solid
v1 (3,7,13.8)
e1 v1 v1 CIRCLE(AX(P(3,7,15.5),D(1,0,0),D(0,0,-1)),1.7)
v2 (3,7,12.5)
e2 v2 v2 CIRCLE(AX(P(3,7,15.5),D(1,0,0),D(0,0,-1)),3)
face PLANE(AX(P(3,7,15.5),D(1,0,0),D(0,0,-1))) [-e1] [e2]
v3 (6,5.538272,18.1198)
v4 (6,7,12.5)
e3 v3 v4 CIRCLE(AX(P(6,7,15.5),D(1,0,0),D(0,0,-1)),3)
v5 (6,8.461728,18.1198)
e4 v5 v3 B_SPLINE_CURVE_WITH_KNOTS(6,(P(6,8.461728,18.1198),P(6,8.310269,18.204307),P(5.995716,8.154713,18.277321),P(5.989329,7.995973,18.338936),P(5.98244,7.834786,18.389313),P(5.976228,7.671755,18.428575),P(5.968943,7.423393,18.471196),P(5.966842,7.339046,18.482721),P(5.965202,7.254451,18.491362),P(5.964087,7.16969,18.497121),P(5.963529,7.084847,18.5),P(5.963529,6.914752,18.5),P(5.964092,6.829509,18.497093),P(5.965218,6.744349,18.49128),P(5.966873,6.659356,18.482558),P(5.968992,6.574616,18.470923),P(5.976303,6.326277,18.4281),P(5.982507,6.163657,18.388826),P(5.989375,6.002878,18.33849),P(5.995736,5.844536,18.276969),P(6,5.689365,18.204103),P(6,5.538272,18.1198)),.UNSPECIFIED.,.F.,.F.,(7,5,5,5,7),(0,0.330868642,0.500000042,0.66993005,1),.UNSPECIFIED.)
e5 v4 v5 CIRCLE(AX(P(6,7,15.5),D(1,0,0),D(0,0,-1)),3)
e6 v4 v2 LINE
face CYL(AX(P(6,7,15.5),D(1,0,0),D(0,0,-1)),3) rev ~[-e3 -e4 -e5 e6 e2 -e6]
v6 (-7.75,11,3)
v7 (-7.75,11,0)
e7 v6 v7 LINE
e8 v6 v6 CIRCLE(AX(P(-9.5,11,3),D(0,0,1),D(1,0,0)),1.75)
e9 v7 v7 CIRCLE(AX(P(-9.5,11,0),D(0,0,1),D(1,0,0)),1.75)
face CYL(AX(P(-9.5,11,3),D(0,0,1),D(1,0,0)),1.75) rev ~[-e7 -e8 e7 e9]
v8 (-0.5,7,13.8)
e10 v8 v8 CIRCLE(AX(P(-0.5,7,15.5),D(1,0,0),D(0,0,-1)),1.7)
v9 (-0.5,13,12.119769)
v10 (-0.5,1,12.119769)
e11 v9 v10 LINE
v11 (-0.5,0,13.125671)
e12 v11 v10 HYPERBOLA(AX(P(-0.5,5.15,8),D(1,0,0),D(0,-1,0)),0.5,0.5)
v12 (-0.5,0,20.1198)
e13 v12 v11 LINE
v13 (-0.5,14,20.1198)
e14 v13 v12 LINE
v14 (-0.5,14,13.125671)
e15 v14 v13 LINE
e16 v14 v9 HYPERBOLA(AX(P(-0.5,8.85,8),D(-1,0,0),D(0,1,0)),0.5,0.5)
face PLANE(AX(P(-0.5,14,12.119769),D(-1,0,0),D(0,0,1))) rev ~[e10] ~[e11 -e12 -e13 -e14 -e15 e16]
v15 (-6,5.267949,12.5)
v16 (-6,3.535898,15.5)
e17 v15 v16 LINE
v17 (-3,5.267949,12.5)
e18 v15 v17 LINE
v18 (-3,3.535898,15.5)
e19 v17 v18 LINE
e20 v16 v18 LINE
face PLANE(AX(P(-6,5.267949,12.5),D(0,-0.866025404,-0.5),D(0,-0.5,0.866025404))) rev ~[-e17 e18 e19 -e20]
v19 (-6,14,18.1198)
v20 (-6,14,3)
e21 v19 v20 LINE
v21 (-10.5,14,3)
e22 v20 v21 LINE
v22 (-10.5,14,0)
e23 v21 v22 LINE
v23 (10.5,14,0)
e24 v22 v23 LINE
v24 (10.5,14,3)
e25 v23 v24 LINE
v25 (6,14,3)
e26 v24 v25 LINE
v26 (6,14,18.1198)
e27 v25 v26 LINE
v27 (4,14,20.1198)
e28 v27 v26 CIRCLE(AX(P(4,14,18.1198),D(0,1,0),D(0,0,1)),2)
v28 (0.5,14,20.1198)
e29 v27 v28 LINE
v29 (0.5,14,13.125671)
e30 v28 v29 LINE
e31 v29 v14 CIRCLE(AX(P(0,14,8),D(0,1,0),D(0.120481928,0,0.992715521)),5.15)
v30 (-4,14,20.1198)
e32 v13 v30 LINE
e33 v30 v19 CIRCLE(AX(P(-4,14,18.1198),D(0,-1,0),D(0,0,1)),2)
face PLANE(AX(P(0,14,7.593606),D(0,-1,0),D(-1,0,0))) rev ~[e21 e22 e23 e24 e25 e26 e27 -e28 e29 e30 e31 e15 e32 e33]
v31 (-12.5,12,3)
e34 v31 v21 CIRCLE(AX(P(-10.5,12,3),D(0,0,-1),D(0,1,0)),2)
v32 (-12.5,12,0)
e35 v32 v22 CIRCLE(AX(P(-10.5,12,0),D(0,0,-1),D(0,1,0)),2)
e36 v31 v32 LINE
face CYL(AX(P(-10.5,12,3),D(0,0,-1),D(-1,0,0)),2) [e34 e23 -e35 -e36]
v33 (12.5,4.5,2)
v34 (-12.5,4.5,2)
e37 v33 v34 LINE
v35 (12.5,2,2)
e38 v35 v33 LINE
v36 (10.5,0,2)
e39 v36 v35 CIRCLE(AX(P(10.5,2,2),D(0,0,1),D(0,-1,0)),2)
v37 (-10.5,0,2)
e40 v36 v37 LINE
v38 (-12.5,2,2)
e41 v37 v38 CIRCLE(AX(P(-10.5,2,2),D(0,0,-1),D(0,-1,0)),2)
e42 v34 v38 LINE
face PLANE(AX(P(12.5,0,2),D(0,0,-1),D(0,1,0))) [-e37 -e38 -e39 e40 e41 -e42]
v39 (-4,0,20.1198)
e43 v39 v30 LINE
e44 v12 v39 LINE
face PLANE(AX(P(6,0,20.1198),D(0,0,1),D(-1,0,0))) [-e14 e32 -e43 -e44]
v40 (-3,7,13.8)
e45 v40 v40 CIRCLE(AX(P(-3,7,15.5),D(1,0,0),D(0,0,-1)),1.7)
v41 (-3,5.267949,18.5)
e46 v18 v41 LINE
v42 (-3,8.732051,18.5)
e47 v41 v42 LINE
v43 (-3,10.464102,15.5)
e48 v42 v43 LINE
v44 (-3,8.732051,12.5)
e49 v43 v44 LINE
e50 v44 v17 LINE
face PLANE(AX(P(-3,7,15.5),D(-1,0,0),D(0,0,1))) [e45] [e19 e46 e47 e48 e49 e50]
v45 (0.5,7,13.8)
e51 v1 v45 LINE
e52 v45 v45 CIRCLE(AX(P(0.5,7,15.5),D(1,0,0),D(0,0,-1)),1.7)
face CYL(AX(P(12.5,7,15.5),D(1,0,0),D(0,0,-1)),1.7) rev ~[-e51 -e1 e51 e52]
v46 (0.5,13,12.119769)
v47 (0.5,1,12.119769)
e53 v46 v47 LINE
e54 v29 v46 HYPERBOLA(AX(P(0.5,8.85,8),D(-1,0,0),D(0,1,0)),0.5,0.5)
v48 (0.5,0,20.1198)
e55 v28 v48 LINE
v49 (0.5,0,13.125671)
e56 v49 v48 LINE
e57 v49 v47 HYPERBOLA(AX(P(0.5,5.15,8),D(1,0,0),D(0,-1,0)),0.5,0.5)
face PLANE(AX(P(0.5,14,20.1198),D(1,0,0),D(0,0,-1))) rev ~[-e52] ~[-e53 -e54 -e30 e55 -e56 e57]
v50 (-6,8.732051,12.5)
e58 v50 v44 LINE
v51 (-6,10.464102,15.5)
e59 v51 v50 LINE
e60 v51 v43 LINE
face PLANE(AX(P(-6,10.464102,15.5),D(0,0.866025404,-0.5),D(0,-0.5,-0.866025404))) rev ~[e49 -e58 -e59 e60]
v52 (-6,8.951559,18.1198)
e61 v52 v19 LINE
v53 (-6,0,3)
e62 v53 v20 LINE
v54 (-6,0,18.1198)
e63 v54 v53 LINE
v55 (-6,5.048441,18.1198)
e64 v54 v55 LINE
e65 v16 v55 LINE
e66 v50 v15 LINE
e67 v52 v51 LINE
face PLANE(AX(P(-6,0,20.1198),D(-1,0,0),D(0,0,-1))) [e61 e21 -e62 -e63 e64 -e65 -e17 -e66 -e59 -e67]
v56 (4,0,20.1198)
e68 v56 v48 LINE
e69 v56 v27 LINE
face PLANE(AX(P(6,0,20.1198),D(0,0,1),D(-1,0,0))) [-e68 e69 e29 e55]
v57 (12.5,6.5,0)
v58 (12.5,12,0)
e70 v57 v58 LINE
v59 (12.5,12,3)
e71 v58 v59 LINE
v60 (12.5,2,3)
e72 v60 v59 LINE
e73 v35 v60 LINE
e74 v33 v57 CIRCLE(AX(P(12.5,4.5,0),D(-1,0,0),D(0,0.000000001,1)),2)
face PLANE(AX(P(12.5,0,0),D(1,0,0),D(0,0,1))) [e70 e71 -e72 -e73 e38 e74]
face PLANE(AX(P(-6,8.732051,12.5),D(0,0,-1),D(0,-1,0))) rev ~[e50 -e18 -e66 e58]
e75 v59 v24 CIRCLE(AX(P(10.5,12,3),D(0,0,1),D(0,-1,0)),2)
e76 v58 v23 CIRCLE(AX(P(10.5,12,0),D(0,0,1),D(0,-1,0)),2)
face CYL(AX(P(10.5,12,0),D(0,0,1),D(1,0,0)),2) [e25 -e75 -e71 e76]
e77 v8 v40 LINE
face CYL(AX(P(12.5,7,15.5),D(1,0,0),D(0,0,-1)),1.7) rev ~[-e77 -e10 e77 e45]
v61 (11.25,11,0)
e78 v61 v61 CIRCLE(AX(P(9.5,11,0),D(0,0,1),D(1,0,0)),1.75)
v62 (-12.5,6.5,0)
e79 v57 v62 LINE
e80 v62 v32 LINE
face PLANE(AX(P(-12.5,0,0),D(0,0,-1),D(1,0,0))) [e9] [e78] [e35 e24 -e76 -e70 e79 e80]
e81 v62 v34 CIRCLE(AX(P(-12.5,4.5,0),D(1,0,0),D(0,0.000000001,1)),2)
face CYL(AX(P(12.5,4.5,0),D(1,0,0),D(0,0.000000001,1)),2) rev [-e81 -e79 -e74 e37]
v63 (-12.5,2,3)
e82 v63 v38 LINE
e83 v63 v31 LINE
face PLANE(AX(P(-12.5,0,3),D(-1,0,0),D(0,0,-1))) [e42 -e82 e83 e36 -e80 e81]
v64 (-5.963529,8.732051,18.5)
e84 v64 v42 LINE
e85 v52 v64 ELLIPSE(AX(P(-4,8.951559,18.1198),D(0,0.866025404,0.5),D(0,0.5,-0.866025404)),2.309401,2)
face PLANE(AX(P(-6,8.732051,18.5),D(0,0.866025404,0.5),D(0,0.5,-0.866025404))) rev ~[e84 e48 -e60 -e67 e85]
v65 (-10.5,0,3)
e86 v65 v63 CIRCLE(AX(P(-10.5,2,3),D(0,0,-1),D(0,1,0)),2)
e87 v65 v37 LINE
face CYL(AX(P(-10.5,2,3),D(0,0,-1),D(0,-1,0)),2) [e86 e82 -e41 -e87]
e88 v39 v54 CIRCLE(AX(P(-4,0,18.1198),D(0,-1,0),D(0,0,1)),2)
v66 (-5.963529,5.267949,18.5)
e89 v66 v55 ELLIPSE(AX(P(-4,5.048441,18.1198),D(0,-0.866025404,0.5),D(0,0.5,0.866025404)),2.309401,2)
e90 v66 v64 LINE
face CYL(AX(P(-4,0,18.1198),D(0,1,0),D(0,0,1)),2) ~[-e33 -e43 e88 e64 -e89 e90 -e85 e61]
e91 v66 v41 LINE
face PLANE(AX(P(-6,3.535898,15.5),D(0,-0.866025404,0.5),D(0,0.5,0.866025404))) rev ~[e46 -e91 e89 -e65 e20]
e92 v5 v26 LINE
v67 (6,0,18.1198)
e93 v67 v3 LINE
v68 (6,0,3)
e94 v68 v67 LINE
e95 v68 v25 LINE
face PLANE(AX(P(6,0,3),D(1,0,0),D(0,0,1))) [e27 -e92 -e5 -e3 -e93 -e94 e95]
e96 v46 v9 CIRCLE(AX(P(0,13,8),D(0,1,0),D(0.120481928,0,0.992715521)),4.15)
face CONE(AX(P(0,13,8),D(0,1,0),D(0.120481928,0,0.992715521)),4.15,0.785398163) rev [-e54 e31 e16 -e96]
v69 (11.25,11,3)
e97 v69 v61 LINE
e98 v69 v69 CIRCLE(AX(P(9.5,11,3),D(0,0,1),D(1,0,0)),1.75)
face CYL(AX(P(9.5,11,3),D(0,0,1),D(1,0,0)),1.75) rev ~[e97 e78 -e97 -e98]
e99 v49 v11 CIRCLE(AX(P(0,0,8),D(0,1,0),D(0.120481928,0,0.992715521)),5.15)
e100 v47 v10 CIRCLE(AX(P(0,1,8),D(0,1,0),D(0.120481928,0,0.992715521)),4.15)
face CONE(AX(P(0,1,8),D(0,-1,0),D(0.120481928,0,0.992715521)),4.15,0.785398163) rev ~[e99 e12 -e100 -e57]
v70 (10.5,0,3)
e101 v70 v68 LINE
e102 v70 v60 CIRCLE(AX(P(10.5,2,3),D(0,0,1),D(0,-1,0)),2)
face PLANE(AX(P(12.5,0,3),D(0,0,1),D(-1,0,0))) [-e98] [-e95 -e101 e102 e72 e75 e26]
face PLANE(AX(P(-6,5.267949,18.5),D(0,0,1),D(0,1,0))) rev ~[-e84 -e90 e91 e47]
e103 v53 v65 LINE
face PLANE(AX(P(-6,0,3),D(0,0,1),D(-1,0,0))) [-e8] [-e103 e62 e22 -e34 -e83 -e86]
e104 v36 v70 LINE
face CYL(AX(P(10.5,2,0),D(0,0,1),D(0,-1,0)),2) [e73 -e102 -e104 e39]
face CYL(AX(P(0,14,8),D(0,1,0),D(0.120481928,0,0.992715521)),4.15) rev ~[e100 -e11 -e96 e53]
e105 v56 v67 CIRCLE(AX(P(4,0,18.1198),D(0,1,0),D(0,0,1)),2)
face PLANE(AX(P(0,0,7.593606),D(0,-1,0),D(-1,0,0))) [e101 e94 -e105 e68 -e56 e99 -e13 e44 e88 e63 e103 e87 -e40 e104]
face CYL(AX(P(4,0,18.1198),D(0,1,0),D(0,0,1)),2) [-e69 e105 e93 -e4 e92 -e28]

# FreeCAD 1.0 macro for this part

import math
import FreeCAD as App
import Part
import Sketcher

V = App.Vector
Q = App.Units.Quantity


def edges_at(feature, points):
    """Names of the edges that pass closest to the given points."""
    edges = feature.Shape.Edges
    near = lambda p: min(range(len(edges)), key=lambda i: edges[i].distToShape(Part.Vertex(*p))[0])
    return sorted({f"Edge{near(p) + 1}" for p in points})

doc = App.newDocument("Part")
body = doc.addObject("PartDesign::Body", "Body")

sketch1 = body.newObject("Sketcher::SketchObject", "Sketch")
sketch1.AttachmentSupport = (doc.getObject("XZ_Plane"), [""])
sketch1.MapMode = "FlatFace"
sketch1.addGeometry(Part.LineSegment(V(12.5, 0, 0), V(-12.5, 0, 0)), False)
sketch1.addGeometry(Part.LineSegment(V(-12.5, 0, 0), V(-12.5, 3, 0)), False)
sketch1.addGeometry(Part.LineSegment(V(-12.5, 3, 0), V(-6, 3, 0)), False)
sketch1.addGeometry(Part.LineSegment(V(-6, 3, 0), V(-6, 20.1, 0)), False)
sketch1.addGeometry(Part.LineSegment(V(-6, 20.1, 0), V(6, 20.1, 0)), False)
sketch1.addGeometry(Part.LineSegment(V(6, 20.1, 0), V(6, 3, 0)), False)
sketch1.addGeometry(Part.LineSegment(V(6, 3, 0), V(12.5, 3, 0)), False)
sketch1.addGeometry(Part.LineSegment(V(12.5, 3, 0), V(12.5, 0, 0)), False)
sketch1.addConstraint(Sketcher.Constraint("Coincident", 0, 2, 1, 1))
sketch1.addConstraint(Sketcher.Constraint("Coincident", 1, 2, 2, 1))
sketch1.addConstraint(Sketcher.Constraint("Coincident", 2, 2, 3, 1))
sketch1.addConstraint(Sketcher.Constraint("Coincident", 3, 2, 4, 1))
sketch1.addConstraint(Sketcher.Constraint("Coincident", 4, 2, 5, 1))
sketch1.addConstraint(Sketcher.Constraint("Coincident", 5, 2, 6, 1))
sketch1.addConstraint(Sketcher.Constraint("Coincident", 6, 2, 7, 1))
sketch1.addConstraint(Sketcher.Constraint("Coincident", 7, 2, 0, 1))
sketch1.addConstraint(Sketcher.Constraint("Horizontal", 0))
sketch1.addConstraint(Sketcher.Constraint("Vertical", 1))
sketch1.addConstraint(Sketcher.Constraint("Horizontal", 2))
sketch1.addConstraint(Sketcher.Constraint("Vertical", 3))
sketch1.addConstraint(Sketcher.Constraint("Horizontal", 4))
sketch1.addConstraint(Sketcher.Constraint("Vertical", 5))
sketch1.addConstraint(Sketcher.Constraint("Horizontal", 6))
sketch1.addConstraint(Sketcher.Constraint("Vertical", 7))
sketch1.addConstraint(Sketcher.Constraint("Symmetric", 0, 2, 7, 2, -1, 1))
sketch1.addConstraint(Sketcher.Constraint("Symmetric", 2, 2, 5, 2, -2))
sketch1.addConstraint(Sketcher.Constraint("DistanceX", 0, 2, 0, 1, Q("25 mm")))
sketch1.addConstraint(Sketcher.Constraint("DistanceX", 4, 1, 4, 2, Q("12 mm")))
sketch1.addConstraint(Sketcher.Constraint("DistanceY", 1, 1, 1, 2, Q("3 mm")))
sketch1.addConstraint(Sketcher.Constraint("DistanceY", 3, 1, 3, 2, Q("17.1198 mm")))
pad1 = body.newObject("PartDesign::Pad", "Pad")
pad1.Profile = sketch1
pad1.Length = 14
pad1.Reversed = True

sketch2 = body.newObject("Sketcher::SketchObject", "Sketch001")
sketch2.AttachmentSupport = (doc.getObject("XZ_Plane"), [""])
sketch2.MapMode = "FlatFace"
sketch2.AttachmentOffset = App.Placement(V(0, 0, -14), App.Rotation())
sketch2.addGeometry(Part.LineSegment(V(-0.5, 12.1, 0), V(-0.5, 20.1, 0)), False)
sketch2.addGeometry(Part.LineSegment(V(-0.5, 20.1, 0), V(0.5, 20.1, 0)), False)
sketch2.addGeometry(Part.LineSegment(V(0.5, 20.1, 0), V(0.5, 12.1, 0)), False)
sketch2.addGeometry(Part.ArcOfCircle(Part.Circle(V(0, 8, 0), V(0, 0, 1), 4.2), math.radians(97), math.radians(443)), False)
sketch2.addConstraint(Sketcher.Constraint("Coincident", 0, 2, 1, 1))
sketch2.addConstraint(Sketcher.Constraint("Coincident", 1, 2, 2, 1))
sketch2.addConstraint(Sketcher.Constraint("Coincident", 2, 2, 3, 2))
sketch2.addConstraint(Sketcher.Constraint("Coincident", 3, 1, 0, 1))
sketch2.addConstraint(Sketcher.Constraint("Vertical", 0))
sketch2.addConstraint(Sketcher.Constraint("Horizontal", 1))
sketch2.addConstraint(Sketcher.Constraint("Vertical", 2))
sketch2.addConstraint(Sketcher.Constraint("Symmetric", 2, 2, 3, 1, -2))
sketch2.addConstraint(Sketcher.Constraint("DistanceX", 1, 1, 1, 2, Q("1 mm")))
sketch2.addConstraint(Sketcher.Constraint("Radius", 3, Q("4.15 mm")))
sketch2.addConstraint(Sketcher.Constraint("DistanceY", -1, 1, 3, 3, Q("8 mm")))
sketch2.addConstraint(Sketcher.Constraint("DistanceY", 0, 1, 0, 2, Q("8.000031 mm")))
pocket1 = body.newObject("PartDesign::Pocket", "Pocket")
pocket1.Profile = sketch2
pocket1.Type = "ThroughAll"
pocket1.Reversed = True
doc.recompute()

chamfer = body.newObject("PartDesign::Chamfer", "Chamfer")
chamfer.Base = (pocket1, edges_at(pocket1, [(0, 0, 3.85), (0, 14, 3.85)]))
chamfer.Size = 1
doc.recompute()

fillet = body.newObject("PartDesign::Fillet", "Fillet")
fillet.Base = (chamfer, edges_at(chamfer, [
    (-12.5, 0, 1.5),
    (6, 7, 20.12),
    (-6, 7, 20.12),
    (12.5, 14, 1.5),
    (-12.5, 14, 1.5),
    (12.5, 0, 1.5),
]))
fillet.Radius = 2

sketch3 = body.newObject("Sketcher::SketchObject", "Sketch002")
sketch3.AttachmentSupport = (doc.getObject("XY_Plane"), [""])
sketch3.MapMode = "FlatFace"
sketch3.AttachmentOffset = App.Placement(V(0, 0, 3), App.Rotation())
sketch3.addGeometry(Part.Circle(V(-9.5, 11, 0), V(0, 0, 1), 1.8), False)
sketch3.addGeometry(Part.Circle(V(9.5, 11, 0), V(0, 0, 1), 1.8), False)
sketch3.addConstraint(Sketcher.Constraint("Equal", 0, 1))
sketch3.addConstraint(Sketcher.Constraint("Symmetric", 0, 3, 1, 3, -2))
sketch3.addConstraint(Sketcher.Constraint("Diameter", 0, Q("3.5 mm")))
sketch3.addConstraint(Sketcher.Constraint("DistanceY", -1, 1, 0, 3, Q("11 mm")))
sketch3.addConstraint(Sketcher.Constraint("DistanceX", 0, 3, 1, 3, Q("19 mm")))
pocket2 = body.newObject("PartDesign::Pocket", "Pocket001")
pocket2.Profile = sketch3
pocket2.Type = "ThroughAll"

sketch4 = body.newObject("Sketcher::SketchObject", "Sketch003")
sketch4.AttachmentSupport = (doc.getObject("YZ_Plane"), [""])
sketch4.MapMode = "FlatFace"
sketch4.AttachmentOffset = App.Placement(V(0, 0, 12.5), App.Rotation())
sketch4.addGeometry(Part.Circle(V(7, 15.5, 0), V(0, 0, 1), 1.7), False)
sketch4.addGeometry(Part.LineSegment(V(4.5, 2, 0), V(0, 2, 0)), False)
sketch4.addGeometry(Part.LineSegment(V(0, 2, 0), V(0, 0, 0)), False)
sketch4.addGeometry(Part.LineSegment(V(0, 0, 0), V(6.5, 0, 0)), False)
sketch4.addGeometry(Part.ArcOfCircle(Part.Circle(V(4.5, 0, 0), V(0, 0, 1), 2), math.radians(0), math.radians(90)), False)
sketch4.addConstraint(Sketcher.Constraint("Coincident", 1, 2, 2, 1))
sketch4.addConstraint(Sketcher.Constraint("Coincident", 2, 2, 3, 1))
sketch4.addConstraint(Sketcher.Constraint("Coincident", 3, 2, 4, 1))
sketch4.addConstraint(Sketcher.Constraint("Tangent", 4, 2, 1, 1))
sketch4.addConstraint(Sketcher.Constraint("Horizontal", 1))
sketch4.addConstraint(Sketcher.Constraint("Vertical", 2))
sketch4.addConstraint(Sketcher.Constraint("Horizontal", 3))
sketch4.addConstraint(Sketcher.Constraint("Coincident", 2, 2, -1, 1))
sketch4.addConstraint(Sketcher.Constraint("PointOnObject", 4, 3, -1))
sketch4.addConstraint(Sketcher.Constraint("Radius", 4, Q("2 mm")))
sketch4.addConstraint(Sketcher.Constraint("Diameter", 0, Q("3.4 mm")))
sketch4.addConstraint(Sketcher.Constraint("DistanceX", 1, 2, 1, 1, Q("4.5 mm")))
sketch4.addConstraint(Sketcher.Constraint("DistanceX", -1, 1, 0, 3, Q("7 mm")))
sketch4.addConstraint(Sketcher.Constraint("DistanceY", -1, 1, 0, 3, Q("15.5 mm")))
pocket3 = body.newObject("PartDesign::Pocket", "Pocket002")
pocket3.Profile = sketch4
pocket3.Type = "ThroughAll"

sketch5 = body.newObject("Sketcher::SketchObject", "Sketch004")
sketch5.AttachmentSupport = (doc.getObject("YZ_Plane"), [""])
sketch5.MapMode = "FlatFace"
sketch5.AttachmentOffset = App.Placement(V(0, 0, 6), App.Rotation())
sketch5.addGeometry(Part.Circle(V(7, 15.5, 0), V(0, 0, 1), 3), False)
sketch5.addConstraint(Sketcher.Constraint("Diameter", 0, Q("6 mm")))
sketch5.addConstraint(Sketcher.Constraint("DistanceX", -1, 1, 0, 3, Q("7 mm")))
sketch5.addConstraint(Sketcher.Constraint("DistanceY", -1, 1, 0, 3, Q("15.5 mm")))
pocket4 = body.newObject("PartDesign::Pocket", "Pocket003")
pocket4.Profile = sketch5
pocket4.Length = 3

sketch6 = body.newObject("Sketcher::SketchObject", "Sketch005")
sketch6.AttachmentSupport = (doc.getObject("YZ_Plane"), [""])
sketch6.MapMode = "FlatFace"
sketch6.AttachmentOffset = App.Placement(V(0, 0, -6), App.Rotation())
sketch6.addGeometry(Part.LineSegment(V(3.5, 15.5, 0), V(5.3, 18.5, 0)), False)
sketch6.addGeometry(Part.LineSegment(V(5.3, 18.5, 0), V(8.7, 18.5, 0)), False)
sketch6.addGeometry(Part.LineSegment(V(8.7, 18.5, 0), V(10.5, 15.5, 0)), False)
sketch6.addGeometry(Part.LineSegment(V(10.5, 15.5, 0), V(8.7, 12.5, 0)), False)
sketch6.addGeometry(Part.LineSegment(V(8.7, 12.5, 0), V(5.3, 12.5, 0)), False)
sketch6.addGeometry(Part.LineSegment(V(5.3, 12.5, 0), V(3.5, 15.5, 0)), False)
sketch6.addConstraint(Sketcher.Constraint("Coincident", 0, 2, 1, 1))
sketch6.addConstraint(Sketcher.Constraint("Coincident", 1, 2, 2, 1))
sketch6.addConstraint(Sketcher.Constraint("Coincident", 2, 2, 3, 1))
sketch6.addConstraint(Sketcher.Constraint("Coincident", 3, 2, 4, 1))
sketch6.addConstraint(Sketcher.Constraint("Coincident", 4, 2, 5, 1))
sketch6.addConstraint(Sketcher.Constraint("Coincident", 5, 2, 0, 1))
sketch6.addConstraint(Sketcher.Constraint("Horizontal", 1))
sketch6.addConstraint(Sketcher.Constraint("Horizontal", 4))
sketch6.addConstraint(Sketcher.Constraint("Parallel", 0, 3))
sketch6.addConstraint(Sketcher.Constraint("Parallel", 2, 5))
sketch6.addConstraint(Sketcher.Constraint("Horizontal", 2, 2, 5, 2))
sketch6.addConstraint(Sketcher.Constraint("Vertical", 1, 2, 3, 2))
sketch6.addConstraint(Sketcher.Constraint("Vertical", 0, 2, 4, 2))
sketch6.addConstraint(Sketcher.Constraint("Angle", 0, Q("60 deg")))
sketch6.addConstraint(Sketcher.Constraint("DistanceY", 2, 2, 1, 2, Q("3 mm")))
sketch6.addConstraint(Sketcher.Constraint("DistanceY", -1, 1, 0, 2, Q("18.5 mm")))
sketch6.addConstraint(Sketcher.Constraint("DistanceX", 1, 1, 1, 2, Q("3.464102 mm")))
sketch6.addConstraint(Sketcher.Constraint("DistanceX", -1, 1, 2, 2, Q("10.464102 mm")))
pocket5 = body.newObject("PartDesign::Pocket", "Pocket004")
pocket5.Profile = sketch6
pocket5.Length = 3
pocket5.Reversed = True

doc.recompute()
